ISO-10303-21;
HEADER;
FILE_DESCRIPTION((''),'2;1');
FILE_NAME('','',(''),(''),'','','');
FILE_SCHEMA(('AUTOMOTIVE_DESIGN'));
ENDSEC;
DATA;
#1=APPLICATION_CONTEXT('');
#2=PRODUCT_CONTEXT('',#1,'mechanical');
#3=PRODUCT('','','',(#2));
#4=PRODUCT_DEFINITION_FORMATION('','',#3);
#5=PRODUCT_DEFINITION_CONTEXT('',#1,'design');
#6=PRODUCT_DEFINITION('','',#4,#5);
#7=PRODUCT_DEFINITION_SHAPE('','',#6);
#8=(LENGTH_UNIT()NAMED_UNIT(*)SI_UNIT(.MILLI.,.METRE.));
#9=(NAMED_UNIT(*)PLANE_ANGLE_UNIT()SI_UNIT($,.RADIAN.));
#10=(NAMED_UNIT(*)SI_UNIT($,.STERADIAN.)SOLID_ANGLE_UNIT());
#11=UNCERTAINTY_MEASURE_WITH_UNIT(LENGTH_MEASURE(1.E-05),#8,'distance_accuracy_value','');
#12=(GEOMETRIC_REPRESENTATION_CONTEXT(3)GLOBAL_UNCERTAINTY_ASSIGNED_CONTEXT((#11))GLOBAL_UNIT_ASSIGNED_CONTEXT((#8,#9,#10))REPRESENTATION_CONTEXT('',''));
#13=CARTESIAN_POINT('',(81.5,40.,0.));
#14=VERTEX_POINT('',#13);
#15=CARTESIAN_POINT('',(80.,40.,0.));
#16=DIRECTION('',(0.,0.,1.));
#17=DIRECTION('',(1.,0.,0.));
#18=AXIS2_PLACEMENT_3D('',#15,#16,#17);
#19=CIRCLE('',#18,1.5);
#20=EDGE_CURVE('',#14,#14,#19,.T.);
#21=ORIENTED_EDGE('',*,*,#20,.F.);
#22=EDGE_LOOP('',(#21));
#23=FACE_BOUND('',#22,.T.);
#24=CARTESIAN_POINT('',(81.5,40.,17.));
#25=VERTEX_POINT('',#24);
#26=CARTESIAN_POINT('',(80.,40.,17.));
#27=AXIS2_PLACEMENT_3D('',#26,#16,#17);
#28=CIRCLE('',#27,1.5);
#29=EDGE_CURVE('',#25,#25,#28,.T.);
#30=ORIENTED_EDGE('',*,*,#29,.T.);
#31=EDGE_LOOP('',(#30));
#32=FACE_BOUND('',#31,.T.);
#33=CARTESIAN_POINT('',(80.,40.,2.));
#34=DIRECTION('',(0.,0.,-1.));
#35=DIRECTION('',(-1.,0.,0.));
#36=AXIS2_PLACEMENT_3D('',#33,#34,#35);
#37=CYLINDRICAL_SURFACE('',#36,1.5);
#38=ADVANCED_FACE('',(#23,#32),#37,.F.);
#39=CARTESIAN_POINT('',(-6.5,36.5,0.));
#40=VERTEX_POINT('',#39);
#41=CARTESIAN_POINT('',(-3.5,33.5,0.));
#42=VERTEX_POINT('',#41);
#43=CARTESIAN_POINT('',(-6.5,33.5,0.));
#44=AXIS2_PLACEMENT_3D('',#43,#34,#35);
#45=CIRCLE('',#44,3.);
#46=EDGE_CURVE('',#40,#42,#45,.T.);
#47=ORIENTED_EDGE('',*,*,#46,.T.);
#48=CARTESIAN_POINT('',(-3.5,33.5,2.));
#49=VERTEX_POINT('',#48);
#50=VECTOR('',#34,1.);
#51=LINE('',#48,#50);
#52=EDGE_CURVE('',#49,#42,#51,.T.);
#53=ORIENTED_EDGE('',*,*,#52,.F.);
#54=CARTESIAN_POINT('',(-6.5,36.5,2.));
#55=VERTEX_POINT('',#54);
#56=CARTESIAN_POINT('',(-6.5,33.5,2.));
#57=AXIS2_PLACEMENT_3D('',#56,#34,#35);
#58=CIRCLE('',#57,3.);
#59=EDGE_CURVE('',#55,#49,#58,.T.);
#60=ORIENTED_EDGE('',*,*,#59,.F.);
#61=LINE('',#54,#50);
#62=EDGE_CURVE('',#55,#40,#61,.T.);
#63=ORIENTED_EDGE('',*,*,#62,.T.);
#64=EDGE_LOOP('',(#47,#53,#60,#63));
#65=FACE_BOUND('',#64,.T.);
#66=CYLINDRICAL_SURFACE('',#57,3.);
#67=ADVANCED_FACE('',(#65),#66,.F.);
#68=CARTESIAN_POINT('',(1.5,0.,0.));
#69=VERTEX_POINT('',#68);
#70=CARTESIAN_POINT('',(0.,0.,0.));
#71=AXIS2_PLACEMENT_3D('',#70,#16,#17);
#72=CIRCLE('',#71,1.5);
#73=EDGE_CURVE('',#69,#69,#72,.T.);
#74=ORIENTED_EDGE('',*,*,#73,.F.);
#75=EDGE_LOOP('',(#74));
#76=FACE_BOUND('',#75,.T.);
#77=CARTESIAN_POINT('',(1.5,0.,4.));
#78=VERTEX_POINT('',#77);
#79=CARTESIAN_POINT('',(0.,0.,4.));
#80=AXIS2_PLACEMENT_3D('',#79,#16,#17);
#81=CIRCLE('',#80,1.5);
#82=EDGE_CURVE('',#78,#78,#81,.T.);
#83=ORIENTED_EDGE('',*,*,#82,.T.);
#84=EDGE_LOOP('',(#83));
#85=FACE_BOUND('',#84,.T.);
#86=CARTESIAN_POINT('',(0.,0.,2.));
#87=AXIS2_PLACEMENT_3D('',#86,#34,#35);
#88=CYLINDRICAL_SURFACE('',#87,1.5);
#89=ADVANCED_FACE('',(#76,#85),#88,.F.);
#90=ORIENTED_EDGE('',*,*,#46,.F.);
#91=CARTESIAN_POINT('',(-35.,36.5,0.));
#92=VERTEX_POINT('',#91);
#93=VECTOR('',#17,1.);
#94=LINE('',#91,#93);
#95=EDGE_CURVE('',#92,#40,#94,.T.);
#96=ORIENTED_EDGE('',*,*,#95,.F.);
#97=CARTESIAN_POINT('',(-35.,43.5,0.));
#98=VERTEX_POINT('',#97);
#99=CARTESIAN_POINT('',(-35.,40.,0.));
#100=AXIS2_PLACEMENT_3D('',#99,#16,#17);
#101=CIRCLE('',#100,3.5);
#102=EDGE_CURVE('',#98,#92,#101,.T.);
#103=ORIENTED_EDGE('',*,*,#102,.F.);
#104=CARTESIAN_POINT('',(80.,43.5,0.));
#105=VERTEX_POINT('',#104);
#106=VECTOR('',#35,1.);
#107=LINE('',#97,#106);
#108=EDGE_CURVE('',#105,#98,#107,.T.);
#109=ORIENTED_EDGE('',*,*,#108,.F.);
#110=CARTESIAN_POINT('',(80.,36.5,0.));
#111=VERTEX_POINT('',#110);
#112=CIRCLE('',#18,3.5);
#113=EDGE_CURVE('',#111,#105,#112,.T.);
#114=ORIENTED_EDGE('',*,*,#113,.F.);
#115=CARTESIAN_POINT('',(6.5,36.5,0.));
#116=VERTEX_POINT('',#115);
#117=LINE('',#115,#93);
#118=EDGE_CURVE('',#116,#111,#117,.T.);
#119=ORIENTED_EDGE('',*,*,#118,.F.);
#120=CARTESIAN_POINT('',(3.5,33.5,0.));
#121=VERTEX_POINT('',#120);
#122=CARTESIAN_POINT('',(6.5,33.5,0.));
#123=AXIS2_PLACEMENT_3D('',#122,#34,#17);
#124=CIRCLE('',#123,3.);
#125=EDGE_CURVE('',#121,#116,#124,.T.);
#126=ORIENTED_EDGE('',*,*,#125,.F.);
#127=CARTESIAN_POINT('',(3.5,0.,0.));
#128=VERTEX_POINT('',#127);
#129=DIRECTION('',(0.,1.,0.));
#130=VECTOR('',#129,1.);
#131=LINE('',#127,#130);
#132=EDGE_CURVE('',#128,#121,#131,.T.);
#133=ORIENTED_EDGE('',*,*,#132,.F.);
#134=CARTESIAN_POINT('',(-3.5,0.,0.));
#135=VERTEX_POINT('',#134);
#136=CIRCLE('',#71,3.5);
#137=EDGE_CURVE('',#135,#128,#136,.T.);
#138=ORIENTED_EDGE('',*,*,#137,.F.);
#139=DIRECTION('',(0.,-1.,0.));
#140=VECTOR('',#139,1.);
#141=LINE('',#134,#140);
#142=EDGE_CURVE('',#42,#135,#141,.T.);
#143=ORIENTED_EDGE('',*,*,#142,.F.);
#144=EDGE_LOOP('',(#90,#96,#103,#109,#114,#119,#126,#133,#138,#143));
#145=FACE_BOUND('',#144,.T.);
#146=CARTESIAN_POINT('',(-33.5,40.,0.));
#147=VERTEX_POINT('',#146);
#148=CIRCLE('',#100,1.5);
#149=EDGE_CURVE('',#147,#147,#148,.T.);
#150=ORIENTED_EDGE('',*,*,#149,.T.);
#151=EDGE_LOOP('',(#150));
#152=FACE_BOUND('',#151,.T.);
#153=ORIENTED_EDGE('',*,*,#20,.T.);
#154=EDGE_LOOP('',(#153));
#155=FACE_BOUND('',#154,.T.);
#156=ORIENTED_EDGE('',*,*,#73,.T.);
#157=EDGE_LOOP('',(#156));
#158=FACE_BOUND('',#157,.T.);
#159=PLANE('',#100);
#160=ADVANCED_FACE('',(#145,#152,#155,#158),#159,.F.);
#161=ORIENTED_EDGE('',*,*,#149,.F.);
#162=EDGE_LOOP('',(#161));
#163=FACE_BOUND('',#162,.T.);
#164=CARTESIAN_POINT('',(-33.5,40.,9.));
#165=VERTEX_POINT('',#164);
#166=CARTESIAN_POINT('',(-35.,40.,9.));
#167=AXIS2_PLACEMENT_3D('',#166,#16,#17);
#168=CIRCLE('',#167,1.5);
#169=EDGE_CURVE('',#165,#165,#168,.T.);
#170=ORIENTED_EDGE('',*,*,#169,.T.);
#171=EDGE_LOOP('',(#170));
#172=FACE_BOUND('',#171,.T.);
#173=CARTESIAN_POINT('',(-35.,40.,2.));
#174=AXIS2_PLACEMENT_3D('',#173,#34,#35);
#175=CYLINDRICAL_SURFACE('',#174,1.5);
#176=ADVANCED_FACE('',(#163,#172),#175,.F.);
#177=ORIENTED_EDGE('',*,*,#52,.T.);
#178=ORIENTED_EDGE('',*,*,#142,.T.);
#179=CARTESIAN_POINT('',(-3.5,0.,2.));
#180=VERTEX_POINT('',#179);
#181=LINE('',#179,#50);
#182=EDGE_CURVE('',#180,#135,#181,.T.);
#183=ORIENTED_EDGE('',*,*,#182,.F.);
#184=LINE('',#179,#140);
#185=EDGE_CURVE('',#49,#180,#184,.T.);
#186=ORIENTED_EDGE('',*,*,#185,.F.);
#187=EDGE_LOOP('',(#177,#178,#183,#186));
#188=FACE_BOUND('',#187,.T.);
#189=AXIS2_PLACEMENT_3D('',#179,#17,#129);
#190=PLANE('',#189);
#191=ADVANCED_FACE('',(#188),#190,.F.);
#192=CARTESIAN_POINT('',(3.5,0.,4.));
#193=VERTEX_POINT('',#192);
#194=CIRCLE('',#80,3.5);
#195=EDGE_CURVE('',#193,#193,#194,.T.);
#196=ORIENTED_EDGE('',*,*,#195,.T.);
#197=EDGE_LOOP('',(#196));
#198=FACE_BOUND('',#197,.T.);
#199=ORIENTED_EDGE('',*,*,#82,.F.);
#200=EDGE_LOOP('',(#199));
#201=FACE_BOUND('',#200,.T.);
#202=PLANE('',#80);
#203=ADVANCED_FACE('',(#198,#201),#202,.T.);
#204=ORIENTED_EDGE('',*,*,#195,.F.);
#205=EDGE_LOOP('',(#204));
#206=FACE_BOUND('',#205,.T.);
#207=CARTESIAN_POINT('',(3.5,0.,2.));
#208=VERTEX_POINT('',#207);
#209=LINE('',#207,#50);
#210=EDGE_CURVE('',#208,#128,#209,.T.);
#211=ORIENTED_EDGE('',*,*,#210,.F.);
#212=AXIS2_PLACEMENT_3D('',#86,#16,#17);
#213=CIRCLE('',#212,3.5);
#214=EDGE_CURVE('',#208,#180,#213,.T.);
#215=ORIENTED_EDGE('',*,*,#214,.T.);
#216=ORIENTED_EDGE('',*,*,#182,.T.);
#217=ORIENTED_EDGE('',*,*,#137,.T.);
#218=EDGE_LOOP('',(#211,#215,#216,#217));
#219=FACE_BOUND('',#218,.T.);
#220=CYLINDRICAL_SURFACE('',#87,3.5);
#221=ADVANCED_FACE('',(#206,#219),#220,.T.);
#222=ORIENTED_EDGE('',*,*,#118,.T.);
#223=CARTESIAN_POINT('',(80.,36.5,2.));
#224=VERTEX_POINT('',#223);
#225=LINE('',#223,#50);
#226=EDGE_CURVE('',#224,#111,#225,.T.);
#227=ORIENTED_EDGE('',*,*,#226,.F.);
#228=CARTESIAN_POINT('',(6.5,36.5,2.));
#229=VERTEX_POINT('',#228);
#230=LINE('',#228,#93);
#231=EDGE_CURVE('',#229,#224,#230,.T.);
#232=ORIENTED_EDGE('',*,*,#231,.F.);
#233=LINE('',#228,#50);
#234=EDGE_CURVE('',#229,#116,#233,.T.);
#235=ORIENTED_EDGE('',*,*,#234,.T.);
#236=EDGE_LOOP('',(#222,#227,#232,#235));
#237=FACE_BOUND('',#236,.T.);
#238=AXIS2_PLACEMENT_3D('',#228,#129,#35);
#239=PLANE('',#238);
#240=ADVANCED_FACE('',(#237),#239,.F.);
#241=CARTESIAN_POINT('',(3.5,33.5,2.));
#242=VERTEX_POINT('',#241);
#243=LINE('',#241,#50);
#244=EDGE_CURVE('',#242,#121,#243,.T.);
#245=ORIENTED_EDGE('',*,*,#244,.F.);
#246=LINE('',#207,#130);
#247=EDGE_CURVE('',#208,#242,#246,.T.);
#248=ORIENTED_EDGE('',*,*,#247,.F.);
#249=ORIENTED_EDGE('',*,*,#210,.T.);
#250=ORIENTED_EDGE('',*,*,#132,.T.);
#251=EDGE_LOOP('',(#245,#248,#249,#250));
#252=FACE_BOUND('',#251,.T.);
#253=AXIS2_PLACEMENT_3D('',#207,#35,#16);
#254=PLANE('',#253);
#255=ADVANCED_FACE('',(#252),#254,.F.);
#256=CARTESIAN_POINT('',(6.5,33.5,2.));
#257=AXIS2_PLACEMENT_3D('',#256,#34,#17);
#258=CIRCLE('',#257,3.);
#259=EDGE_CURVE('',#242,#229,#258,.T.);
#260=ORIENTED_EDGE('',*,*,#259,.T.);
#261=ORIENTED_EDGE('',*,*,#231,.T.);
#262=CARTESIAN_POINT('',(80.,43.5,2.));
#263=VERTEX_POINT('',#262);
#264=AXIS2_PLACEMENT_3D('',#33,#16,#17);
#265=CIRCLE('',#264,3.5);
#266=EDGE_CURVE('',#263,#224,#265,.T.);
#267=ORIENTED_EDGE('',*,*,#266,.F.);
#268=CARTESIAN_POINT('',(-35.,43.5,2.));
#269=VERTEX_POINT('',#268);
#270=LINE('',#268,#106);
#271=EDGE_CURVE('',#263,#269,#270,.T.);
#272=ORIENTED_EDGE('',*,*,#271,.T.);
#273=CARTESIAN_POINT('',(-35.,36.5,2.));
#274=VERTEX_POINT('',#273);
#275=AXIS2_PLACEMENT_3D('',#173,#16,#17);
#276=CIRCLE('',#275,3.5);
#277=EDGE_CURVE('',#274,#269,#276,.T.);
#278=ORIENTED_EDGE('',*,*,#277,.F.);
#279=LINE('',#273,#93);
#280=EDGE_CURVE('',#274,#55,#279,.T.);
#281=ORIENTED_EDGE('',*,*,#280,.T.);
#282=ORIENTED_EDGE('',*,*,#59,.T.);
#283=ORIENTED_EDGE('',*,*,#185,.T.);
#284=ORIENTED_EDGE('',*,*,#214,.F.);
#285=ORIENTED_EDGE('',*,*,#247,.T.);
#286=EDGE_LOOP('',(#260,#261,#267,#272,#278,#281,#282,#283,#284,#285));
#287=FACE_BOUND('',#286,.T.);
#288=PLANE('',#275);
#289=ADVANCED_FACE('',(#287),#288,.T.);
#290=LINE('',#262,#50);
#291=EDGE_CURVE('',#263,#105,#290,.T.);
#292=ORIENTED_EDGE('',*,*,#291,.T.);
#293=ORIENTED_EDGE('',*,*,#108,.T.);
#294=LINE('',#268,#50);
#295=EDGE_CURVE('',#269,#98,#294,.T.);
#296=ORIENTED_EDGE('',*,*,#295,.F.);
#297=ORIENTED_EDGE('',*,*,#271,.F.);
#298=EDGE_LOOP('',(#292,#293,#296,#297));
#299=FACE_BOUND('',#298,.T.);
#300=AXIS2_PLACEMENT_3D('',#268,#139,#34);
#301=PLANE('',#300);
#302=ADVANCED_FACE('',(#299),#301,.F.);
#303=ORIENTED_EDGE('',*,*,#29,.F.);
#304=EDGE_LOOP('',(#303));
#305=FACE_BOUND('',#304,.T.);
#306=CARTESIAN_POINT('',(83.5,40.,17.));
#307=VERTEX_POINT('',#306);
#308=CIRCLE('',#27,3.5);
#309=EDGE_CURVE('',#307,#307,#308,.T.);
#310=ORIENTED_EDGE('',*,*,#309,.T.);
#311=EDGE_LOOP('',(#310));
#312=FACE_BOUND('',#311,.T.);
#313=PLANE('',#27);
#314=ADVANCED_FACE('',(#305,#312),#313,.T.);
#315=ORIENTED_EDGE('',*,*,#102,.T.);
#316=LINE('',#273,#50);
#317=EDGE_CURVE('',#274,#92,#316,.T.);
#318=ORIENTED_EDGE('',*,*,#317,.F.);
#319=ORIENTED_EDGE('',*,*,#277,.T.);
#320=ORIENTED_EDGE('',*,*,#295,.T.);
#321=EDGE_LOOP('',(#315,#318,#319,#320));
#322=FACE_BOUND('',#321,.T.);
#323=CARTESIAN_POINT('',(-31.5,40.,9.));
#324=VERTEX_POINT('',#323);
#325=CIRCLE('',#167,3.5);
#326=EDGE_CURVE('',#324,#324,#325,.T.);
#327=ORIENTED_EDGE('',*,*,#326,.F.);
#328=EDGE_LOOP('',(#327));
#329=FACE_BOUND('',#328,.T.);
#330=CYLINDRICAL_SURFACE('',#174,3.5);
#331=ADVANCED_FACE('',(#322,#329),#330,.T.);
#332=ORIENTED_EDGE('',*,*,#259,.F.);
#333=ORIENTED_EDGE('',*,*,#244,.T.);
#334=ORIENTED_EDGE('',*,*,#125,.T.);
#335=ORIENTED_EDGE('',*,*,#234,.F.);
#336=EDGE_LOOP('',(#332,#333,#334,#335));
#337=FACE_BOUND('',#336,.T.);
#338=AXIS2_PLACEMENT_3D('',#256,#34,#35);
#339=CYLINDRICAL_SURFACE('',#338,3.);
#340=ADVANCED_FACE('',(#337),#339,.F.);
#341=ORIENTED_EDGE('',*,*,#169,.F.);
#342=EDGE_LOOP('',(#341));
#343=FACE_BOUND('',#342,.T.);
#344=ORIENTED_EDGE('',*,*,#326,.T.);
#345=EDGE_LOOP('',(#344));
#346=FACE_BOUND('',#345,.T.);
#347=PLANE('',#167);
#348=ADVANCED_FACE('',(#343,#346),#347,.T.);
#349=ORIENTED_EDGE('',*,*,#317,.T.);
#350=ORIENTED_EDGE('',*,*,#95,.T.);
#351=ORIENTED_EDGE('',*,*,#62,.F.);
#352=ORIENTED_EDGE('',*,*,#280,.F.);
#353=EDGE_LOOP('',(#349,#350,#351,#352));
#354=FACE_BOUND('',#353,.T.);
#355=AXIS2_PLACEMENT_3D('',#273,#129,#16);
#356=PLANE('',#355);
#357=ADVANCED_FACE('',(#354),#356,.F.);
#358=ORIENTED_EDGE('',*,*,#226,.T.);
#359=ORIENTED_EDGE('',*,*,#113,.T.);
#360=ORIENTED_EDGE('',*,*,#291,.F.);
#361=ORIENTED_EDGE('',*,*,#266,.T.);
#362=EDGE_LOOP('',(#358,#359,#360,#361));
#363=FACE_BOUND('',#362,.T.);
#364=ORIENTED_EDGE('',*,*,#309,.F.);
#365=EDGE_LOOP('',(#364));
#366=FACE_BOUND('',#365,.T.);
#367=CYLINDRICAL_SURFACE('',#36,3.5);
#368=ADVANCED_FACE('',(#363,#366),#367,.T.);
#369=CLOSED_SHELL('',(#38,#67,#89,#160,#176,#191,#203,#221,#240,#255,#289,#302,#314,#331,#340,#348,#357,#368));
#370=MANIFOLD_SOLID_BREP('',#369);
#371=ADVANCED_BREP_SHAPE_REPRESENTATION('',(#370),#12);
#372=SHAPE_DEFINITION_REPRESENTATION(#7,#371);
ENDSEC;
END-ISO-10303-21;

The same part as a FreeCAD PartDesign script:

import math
import FreeCAD as App
import Part
import Sketcher

V = App.Vector

doc = App.newDocument("Part")
body = doc.addObject("PartDesign::Body", "Body")

# Sketch on XY plane
sketch1 = body.newObject("Sketcher::SketchObject", "Sketch")
sketch1.AttachmentSupport = (doc.getObject("XY_Plane"), [""])
sketch1.MapMode = "FlatFace"
sketch1.addGeometry(Part.LineSegment(V(80, 43.5, 0), V(-35, 43.5, 0)), False)
sketch1.addGeometry(Part.ArcOfCircle(Part.Circle(V(-35, 40, 0), V(0, 0, 1), 3.5), math.radians(90), math.radians(270)), False)
sketch1.addGeometry(Part.LineSegment(V(-35, 36.5, 0), V(-6.5, 36.5, 0)), False)
sketch1.addGeometry(Part.ArcOfCircle(Part.Circle(V(-6.5, 33.5, 0), V(0, 0, 1), 3), math.radians(0), math.radians(90)), False)
sketch1.addGeometry(Part.LineSegment(V(-3.5, 33.5, 0), V(-3.5, 0, 0)), False)
sketch1.addGeometry(Part.ArcOfCircle(Part.Circle(V(0, 0, 0), V(0, 0, 1), 3.5), math.radians(180), math.radians(360)), False)
sketch1.addGeometry(Part.LineSegment(V(3.5, 0, 0), V(3.5, 33.5, 0)), False)
sketch1.addGeometry(Part.ArcOfCircle(Part.Circle(V(6.5, 33.5, 0), V(0, 0, 1), 3), math.radians(90), math.radians(180)), False)
sketch1.addGeometry(Part.LineSegment(V(6.5, 36.5, 0), V(80, 36.5, 0)), False)
sketch1.addGeometry(Part.ArcOfCircle(Part.Circle(V(80, 40, 0), V(0, 0, 1), 3.5), math.radians(-90), math.radians(90)), False)
sketch1.addGeometry(Part.Circle(V(0, 0, 0), V(0, 0, 1), 1.5), False)
sketch1.addGeometry(Part.Circle(V(80, 40, 0), V(0, 0, 1), 1.5), False)
sketch1.addGeometry(Part.Circle(V(-35, 40, 0), V(0, 0, 1), 1.5), False)
sketch1.addConstraint(Sketcher.Constraint("Tangent", 0, 2, 1, 1))
sketch1.addConstraint(Sketcher.Constraint("Tangent", 1, 2, 2, 1))
sketch1.addConstraint(Sketcher.Constraint("Tangent", 2, 2, 3, 2))
sketch1.addConstraint(Sketcher.Constraint("Tangent", 3, 1, 4, 1))
sketch1.addConstraint(Sketcher.Constraint("Tangent", 4, 2, 5, 1))
sketch1.addConstraint(Sketcher.Constraint("Tangent", 5, 2, 6, 1))
sketch1.addConstraint(Sketcher.Constraint("Tangent", 6, 2, 7, 2))
sketch1.addConstraint(Sketcher.Constraint("Tangent", 7, 1, 8, 1))
sketch1.addConstraint(Sketcher.Constraint("Tangent", 8, 2, 9, 1))
sketch1.addConstraint(Sketcher.Constraint("Tangent", 9, 2, 0, 1))
sketch1.addConstraint(Sketcher.Constraint("Horizontal", 0))
sketch1.addConstraint(Sketcher.Constraint("Horizontal", 2))
sketch1.addConstraint(Sketcher.Constraint("Vertical", 4))
sketch1.addConstraint(Sketcher.Constraint("Vertical", 6))
sketch1.addConstraint(Sketcher.Constraint("Horizontal", 8))
sketch1.addConstraint(Sketcher.Constraint("Coincident", 5, 3, -1, 1))
sketch1.addConstraint(Sketcher.Constraint("Coincident", 10, 3, -1, 1))
sketch1.addConstraint(Sketcher.Constraint("Coincident", 11, 3, 9, 3))
sketch1.addConstraint(Sketcher.Constraint("Coincident", 12, 3, 1, 3))
sketch1.addConstraint(Sketcher.Constraint("Equal", 1, 5))
sketch1.addConstraint(Sketcher.Constraint("Equal", 3, 7))
sketch1.addConstraint(Sketcher.Constraint("Equal", 5, 9))
sketch1.addConstraint(Sketcher.Constraint("Equal", 10, 11))
sketch1.addConstraint(Sketcher.Constraint("Equal", 11, 12))
sketch1.addConstraint(Sketcher.Constraint("Diameter", 10, 3.0))
sketch1.addConstraint(Sketcher.Constraint("Radius", 3, 3.0))
sketch1.addConstraint(Sketcher.Constraint("Radius", 1, 3.5))
sketch1.addConstraint(Sketcher.Constraint("DistanceX", 0, 2, 0, 1, 115.0))
sketch1.addConstraint(Sketcher.Constraint("DistanceX", 2, 1, 2, 2, 28.5))
sketch1.addConstraint(Sketcher.Constraint("DistanceY", 4, 2, 4, 1, 33.5))
pad1 = body.newObject("PartDesign::Pad", "Pad")
pad1.Profile = sketch1
pad1.Length = 2

# Sketch on XY plane
sketch2 = body.newObject("Sketcher::SketchObject", "Sketch001")
sketch2.AttachmentSupport = (doc.getObject("XY_Plane"), [""])
sketch2.MapMode = "FlatFace"
sketch2.AttachmentOffset = App.Placement(V(0, 0, 2), App.Rotation())
sketch2.addGeometry(Part.Circle(V(-35, 40, 0), V(0, 0, 1), 3.5), False)
sketch2.addGeometry(Part.Circle(V(-35, 40, 0), V(0, 0, 1), 1.5), False)
sketch2.addConstraint(Sketcher.Constraint("Coincident", 1, 3, 0, 3))
sketch2.addConstraint(Sketcher.Constraint("Diameter", 0, 7.0))
sketch2.addConstraint(Sketcher.Constraint("Diameter", 1, 3.0))
sketch2.addConstraint(Sketcher.Constraint("DistanceX", 0, 3, -1, 1, 35.0))
sketch2.addConstraint(Sketcher.Constraint("DistanceY", -1, 1, 0, 3, 40.0))
pad2 = body.newObject("PartDesign::Pad", "Pad001")
pad2.Profile = sketch2
pad2.Length = 7

# Sketch on XY plane
sketch3 = body.newObject("Sketcher::SketchObject", "Sketch002")
sketch3.AttachmentSupport = (doc.getObject("XY_Plane"), [""])
sketch3.MapMode = "FlatFace"
sketch3.AttachmentOffset = App.Placement(V(0, 0, 2), App.Rotation())
sketch3.addGeometry(Part.Circle(V(80, 40, 0), V(0, 0, 1), 3.5), False)
sketch3.addGeometry(Part.Circle(V(80, 40, 0), V(0, 0, 1), 1.5), False)
sketch3.addConstraint(Sketcher.Constraint("Coincident", 1, 3, 0, 3))
sketch3.addConstraint(Sketcher.Constraint("Diameter", 0, 7.0))
sketch3.addConstraint(Sketcher.Constraint("Diameter", 1, 3.0))
sketch3.addConstraint(Sketcher.Constraint("DistanceX", -1, 1, 0, 3, 80.0))
sketch3.addConstraint(Sketcher.Constraint("DistanceY", -1, 1, 0, 3, 40.0))
pad3 = body.newObject("PartDesign::Pad", "Pad002")
pad3.Profile = sketch3
pad3.Length = 15

# Sketch on XY plane
sketch4 = body.newObject("Sketcher::SketchObject", "Sketch003")
sketch4.AttachmentSupport = (doc.getObject("XY_Plane"), [""])
sketch4.MapMode = "FlatFace"
sketch4.AttachmentOffset = App.Placement(V(0, 0, 2), App.Rotation())
sketch4.addGeometry(Part.Circle(V(0, 0, 0), V(0, 0, 1), 3.5), False)
sketch4.addGeometry(Part.Circle(V(0, 0, 0), V(0, 0, 1), 1.5), False)
sketch4.addConstraint(Sketcher.Constraint("Coincident", 0, 3, -1, 1))
sketch4.addConstraint(Sketcher.Constraint("Coincident", 1, 3, -1, 1))
sketch4.addConstraint(Sketcher.Constraint("Diameter", 0, 7.0))
sketch4.addConstraint(Sketcher.Constraint("Diameter", 1, 3.0))
pad4 = body.newObject("PartDesign::Pad", "Pad003")
pad4.Profile = sketch4
pad4.Length = 2

doc.recompute()
